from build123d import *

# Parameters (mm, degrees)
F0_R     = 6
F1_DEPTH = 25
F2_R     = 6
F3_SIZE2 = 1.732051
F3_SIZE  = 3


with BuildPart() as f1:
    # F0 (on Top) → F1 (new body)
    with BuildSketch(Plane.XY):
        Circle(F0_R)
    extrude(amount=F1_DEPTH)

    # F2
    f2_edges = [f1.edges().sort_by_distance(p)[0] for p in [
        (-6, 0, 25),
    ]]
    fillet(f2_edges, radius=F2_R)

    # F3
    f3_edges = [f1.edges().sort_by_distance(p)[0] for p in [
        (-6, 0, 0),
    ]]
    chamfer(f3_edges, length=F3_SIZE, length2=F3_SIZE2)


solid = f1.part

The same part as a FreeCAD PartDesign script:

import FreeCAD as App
import Part
import Sketcher

V = App.Vector
Q = App.Units.Quantity


def edges_at(feature, points):
    """Names of the edges that pass closest to the given points."""
    edges = feature.Shape.Edges
    near = lambda p: min(range(len(edges)), key=lambda i: edges[i].distToShape(Part.Vertex(*p))[0])
    return sorted({f"Edge{near(p) + 1}" for p in points})

doc = App.newDocument("Part")
body = doc.addObject("PartDesign::Body", "Body")

# Sketch on XY plane
sketch1 = body.newObject("Sketcher::SketchObject", "Sketch")
sketch1.AttachmentSupport = (doc.getObject("XY_Plane"), [""])
sketch1.MapMode = "FlatFace"
sketch1.addGeometry(Part.Circle(V(0, 0, 0), V(0, 0, 1), 6), False)
sketch1.addConstraint(Sketcher.Constraint("Coincident", 0, 3, -1, 1))
sketch1.addConstraint(Sketcher.Constraint("Diameter", 0, Q("12 mm")))
pad1 = body.newObject("PartDesign::Pad", "Pad")
pad1.Profile = sketch1
pad1.Length = 25
doc.recompute()

fillet = body.newObject("PartDesign::Fillet", "Fillet")
fillet.Base = (pad1, edges_at(pad1, [(-6, 0, 25)]))
fillet.Radius = 6
doc.recompute()

chamfer = body.newObject("PartDesign::Chamfer", "Chamfer")
chamfer.Base = (fillet, edges_at(fillet, [(-6, 0, 0)]))
chamfer.ChamferType = "Two distances"
chamfer.Size = 3
chamfer.Size2 = 1.732051

doc.recompute()
